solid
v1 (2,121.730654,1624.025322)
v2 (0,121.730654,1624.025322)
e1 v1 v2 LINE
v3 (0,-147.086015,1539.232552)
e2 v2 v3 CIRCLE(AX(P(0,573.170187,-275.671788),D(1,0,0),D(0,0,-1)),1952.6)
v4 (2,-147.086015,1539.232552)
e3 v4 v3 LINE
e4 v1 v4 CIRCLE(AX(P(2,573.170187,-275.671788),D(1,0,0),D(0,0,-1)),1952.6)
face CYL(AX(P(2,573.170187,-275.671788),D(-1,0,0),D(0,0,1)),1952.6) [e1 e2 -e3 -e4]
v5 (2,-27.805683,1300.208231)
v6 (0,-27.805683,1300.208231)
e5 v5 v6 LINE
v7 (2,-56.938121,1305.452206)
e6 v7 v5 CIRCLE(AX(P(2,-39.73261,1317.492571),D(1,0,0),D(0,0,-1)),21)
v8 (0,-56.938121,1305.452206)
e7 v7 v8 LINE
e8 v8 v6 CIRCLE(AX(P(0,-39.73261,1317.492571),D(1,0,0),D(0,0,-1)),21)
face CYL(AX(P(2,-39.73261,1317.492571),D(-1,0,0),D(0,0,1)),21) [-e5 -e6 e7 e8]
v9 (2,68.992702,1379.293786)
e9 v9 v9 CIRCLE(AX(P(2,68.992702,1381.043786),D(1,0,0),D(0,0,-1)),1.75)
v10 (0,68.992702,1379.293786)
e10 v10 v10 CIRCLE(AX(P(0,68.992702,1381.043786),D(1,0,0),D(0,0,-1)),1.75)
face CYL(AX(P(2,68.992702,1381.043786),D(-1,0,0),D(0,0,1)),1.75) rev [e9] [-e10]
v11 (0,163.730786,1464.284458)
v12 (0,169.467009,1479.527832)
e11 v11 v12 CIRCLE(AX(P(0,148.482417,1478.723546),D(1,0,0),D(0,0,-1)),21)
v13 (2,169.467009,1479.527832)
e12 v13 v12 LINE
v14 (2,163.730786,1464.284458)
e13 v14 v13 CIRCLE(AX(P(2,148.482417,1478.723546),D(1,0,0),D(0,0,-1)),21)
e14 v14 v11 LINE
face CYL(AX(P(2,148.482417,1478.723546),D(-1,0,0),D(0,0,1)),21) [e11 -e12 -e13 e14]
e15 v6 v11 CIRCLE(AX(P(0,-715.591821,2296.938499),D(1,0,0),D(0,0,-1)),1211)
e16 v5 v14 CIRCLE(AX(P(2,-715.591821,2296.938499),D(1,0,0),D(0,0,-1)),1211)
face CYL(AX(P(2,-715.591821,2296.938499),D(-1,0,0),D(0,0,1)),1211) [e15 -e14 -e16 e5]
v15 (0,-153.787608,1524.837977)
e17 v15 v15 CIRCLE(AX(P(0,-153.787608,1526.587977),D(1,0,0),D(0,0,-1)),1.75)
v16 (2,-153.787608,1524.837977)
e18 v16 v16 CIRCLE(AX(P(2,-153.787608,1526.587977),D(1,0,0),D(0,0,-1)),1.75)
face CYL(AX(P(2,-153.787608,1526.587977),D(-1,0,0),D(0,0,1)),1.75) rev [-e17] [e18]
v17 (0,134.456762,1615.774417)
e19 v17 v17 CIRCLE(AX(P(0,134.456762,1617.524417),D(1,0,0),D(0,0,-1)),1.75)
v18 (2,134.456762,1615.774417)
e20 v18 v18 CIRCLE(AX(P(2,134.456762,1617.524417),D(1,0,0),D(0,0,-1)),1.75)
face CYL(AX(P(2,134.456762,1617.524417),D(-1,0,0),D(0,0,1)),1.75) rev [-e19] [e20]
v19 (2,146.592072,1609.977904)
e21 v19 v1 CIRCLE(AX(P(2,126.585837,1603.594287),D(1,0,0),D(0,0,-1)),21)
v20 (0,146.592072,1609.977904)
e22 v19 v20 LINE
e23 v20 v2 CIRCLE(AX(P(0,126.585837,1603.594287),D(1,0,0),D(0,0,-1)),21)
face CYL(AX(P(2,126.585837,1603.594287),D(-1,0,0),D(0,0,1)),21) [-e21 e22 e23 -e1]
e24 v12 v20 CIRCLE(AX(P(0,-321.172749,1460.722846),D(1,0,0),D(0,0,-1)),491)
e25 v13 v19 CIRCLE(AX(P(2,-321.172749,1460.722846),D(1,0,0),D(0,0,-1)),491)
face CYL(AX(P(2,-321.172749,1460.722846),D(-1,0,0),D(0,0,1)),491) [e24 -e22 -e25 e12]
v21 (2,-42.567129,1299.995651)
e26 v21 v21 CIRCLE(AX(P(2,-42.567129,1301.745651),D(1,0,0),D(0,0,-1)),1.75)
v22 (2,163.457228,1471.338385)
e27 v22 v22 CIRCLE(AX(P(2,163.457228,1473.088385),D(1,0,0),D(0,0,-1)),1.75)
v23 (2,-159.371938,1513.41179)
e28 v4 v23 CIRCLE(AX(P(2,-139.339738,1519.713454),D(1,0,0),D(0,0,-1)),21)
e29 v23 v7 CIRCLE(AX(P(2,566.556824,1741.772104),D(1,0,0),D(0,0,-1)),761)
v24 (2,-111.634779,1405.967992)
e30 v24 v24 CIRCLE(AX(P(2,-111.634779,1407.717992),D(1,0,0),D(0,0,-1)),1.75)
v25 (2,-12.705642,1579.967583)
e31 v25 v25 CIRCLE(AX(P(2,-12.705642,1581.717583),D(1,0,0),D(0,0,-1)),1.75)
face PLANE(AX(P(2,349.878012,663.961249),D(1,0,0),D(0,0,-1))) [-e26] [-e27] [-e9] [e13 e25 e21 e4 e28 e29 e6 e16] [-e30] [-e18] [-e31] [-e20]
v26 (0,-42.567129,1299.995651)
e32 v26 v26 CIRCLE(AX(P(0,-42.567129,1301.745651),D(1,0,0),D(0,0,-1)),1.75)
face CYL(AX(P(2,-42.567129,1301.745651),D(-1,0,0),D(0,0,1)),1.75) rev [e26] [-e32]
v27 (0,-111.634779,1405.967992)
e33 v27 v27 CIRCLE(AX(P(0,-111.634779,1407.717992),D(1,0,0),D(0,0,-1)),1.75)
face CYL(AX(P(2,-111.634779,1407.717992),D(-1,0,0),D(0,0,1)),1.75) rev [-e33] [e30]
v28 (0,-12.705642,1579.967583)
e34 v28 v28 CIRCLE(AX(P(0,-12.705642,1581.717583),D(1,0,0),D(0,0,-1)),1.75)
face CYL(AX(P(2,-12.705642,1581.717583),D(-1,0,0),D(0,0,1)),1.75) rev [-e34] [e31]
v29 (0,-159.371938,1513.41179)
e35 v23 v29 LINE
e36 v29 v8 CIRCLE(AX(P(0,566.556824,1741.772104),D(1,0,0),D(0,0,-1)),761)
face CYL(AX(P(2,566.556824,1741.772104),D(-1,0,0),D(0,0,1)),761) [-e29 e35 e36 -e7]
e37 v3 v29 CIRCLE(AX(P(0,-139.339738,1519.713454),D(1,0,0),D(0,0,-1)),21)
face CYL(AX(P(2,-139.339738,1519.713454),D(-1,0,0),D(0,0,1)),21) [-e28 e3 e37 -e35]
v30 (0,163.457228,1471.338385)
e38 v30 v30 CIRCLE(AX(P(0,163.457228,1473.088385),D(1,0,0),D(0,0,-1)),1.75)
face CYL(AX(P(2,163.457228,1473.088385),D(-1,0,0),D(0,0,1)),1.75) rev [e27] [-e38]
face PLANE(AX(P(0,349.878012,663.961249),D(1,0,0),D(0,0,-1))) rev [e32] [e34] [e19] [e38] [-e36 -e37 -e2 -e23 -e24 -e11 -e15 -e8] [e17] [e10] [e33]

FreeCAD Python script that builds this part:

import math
import FreeCAD as App
import Part
import Sketcher

doc = App.newDocument("Part")
body = doc.addObject("PartDesign::Body", "Body")

# Sketch on YZ plane
sketch1 = doc.addObject("Sketcher::SketchObject", "Sketch")
body.addObject(sketch1)
sketch1.AttachmentSupport = (doc.YZ_Plane, [""])
sketch1.MapMode = "FlatFace"
sketch1.addGeometry([
    Part.ArcOfCircle(Part.Circle(App.Vector(573.2, -275.7, 0), App.Vector(0, 0, 1), 1952.6), math.radians(103.37), math.radians(111.65)),  # 0
    Part.ArcOfCircle(Part.Circle(App.Vector(-139.3, 1519.7, 0), App.Vector(0, 0, 1), 21), math.radians(112), math.radians(197)),  # 1
    Part.ArcOfCircle(Part.Circle(App.Vector(566.6, 1741.8, 0), App.Vector(0, 0, 1), 761), math.radians(-162.54), math.radians(-145.02)),  # 2
    Part.ArcOfCircle(Part.Circle(App.Vector(-39.7, 1317.5, 0), App.Vector(0, 0, 1), 21), math.radians(-145), math.radians(-55)),  # 3
    Part.ArcOfCircle(Part.Circle(App.Vector(-715.6, 2296.9, 0), App.Vector(0, 0, 1), 1211), math.radians(-55.39), math.radians(-43.44)),  # 4
    Part.ArcOfCircle(Part.Circle(App.Vector(148.5, 1478.7, 0), App.Vector(0, 0, 1), 21), math.radians(-43), math.radians(2)),  # 5
    Part.ArcOfCircle(Part.Circle(App.Vector(-321.2, 1460.7, 0), App.Vector(0, 0, 1), 491), math.radians(2.19), math.radians(17.7)),  # 6
    Part.ArcOfCircle(Part.Circle(App.Vector(126.6, 1603.6, 0), App.Vector(0, 0, 1), 21), math.radians(18), math.radians(103)),  # 7
    Part.Circle(App.Vector(-153.8, 1526.6, 0), App.Vector(0, 0, 1), 1.8),  # 8
    Part.Circle(App.Vector(-12.7, 1581.7, 0), App.Vector(0, 0, 1), 1.8),  # 9
    Part.Circle(App.Vector(-111.6, 1407.7, 0), App.Vector(0, 0, 1), 1.8),  # 10
    Part.Circle(App.Vector(-42.6, 1301.7, 0), App.Vector(0, 0, 1), 1.8),  # 11
    Part.Circle(App.Vector(134.5, 1617.5, 0), App.Vector(0, 0, 1), 1.8),  # 12
    Part.Circle(App.Vector(163.5, 1473.1, 0), App.Vector(0, 0, 1), 1.8),  # 13
    Part.Circle(App.Vector(69, 1381, 0), App.Vector(0, 0, 1), 1.8),  # 14
], False)
sketch1.addConstraint([
    Sketcher.Constraint("Tangent", 0, 2, 1, 1),
    Sketcher.Constraint("Tangent", 1, 2, 2, 1),
    Sketcher.Constraint("Tangent", 2, 2, 3, 1),
    Sketcher.Constraint("Tangent", 3, 2, 4, 1),
    Sketcher.Constraint("Tangent", 4, 2, 5, 1),
    Sketcher.Constraint("Tangent", 5, 2, 6, 1),
    Sketcher.Constraint("Tangent", 6, 2, 7, 1),
    Sketcher.Constraint("Tangent", 7, 2, 0, 1),
    Sketcher.Constraint("Equal", 1, 3),
    Sketcher.Constraint("Equal", 3, 5),
    Sketcher.Constraint("Equal", 5, 7),
    Sketcher.Constraint("Equal", 8, 9),
    Sketcher.Constraint("Equal", 9, 10),
    Sketcher.Constraint("Equal", 10, 11),
    Sketcher.Constraint("Equal", 11, 12),
    Sketcher.Constraint("Equal", 12, 13),
    Sketcher.Constraint("Equal", 13, 14),
    Sketcher.Constraint("Radius", 1, 21.0),
    Sketcher.Constraint("Radius", 2, 761.0),
    Sketcher.Constraint("Radius", 4, 1211.0),
    Sketcher.Constraint("Radius", 6, 491.0),
    Sketcher.Constraint("Diameter", 8, 3.5),
    Sketcher.Constraint("Radius", 0, 1952.6),
    Sketcher.Constraint("DistanceY", -1, 1, 4, 3, 2296.938499),
    Sketcher.Constraint("DistanceX", -1, 1, 14, 3, 68.992702),
    Sketcher.Constraint("DistanceY", 6, 3, 5, 3, 18.0007),
    Sketcher.Constraint("DistanceX", 1, 3, 12, 3, 273.7965),
    Sketcher.Constraint("DistanceY", 13, 3, 7, 3, 130.505902),
    Sketcher.Constraint("DistanceY", 14, 3, 13, 3, 92.044599),
    Sketcher.Constraint("DistanceY", 10, 3, 1, 2, 105.693798),
    Sketcher.Constraint("DistanceY", 0, 3, -1, 1, 275.671788),
    Sketcher.Constraint("DistanceX", 1, 3, -1, 1, 139.339738),
    Sketcher.Constraint("DistanceX", 3, 3, -1, 1, 39.73261),
    Sketcher.Constraint("DistanceY", -1, 1, 3, 3, 1317.492571),
    Sketcher.Constraint("DistanceX", 6, 3, -1, 1, 321.172749),
    Sketcher.Constraint("DistanceX", 9, 3, -1, 1, 12.705642),
    Sketcher.Constraint("DistanceX", 10, 3, -1, 1, 111.634779),
    Sketcher.Constraint("DistanceY", -1, 1, 10, 3, 1407.717992),
    Sketcher.Constraint("DistanceX", 11, 3, -1, 1, 42.567129),
    Sketcher.Constraint("DistanceY", -1, 1, 11, 3, 1301.745651),
    Sketcher.Constraint("DistanceX", 8, 3, 1, 3, 14.44787),
    Sketcher.Constraint("DistanceY", 6, 3, 8, 3, 65.865131),
    Sketcher.Constraint("DistanceY", 1, 3, 9, 3, 62.004128),
    Sketcher.Constraint("DistanceY", 7, 3, 12, 3, 13.93013),
    Sketcher.Constraint("DistanceX", 5, 3, 13, 3, 14.974811),
])
pad1 = doc.addObject("PartDesign::Pad", "Pad")
body.addObject(pad1)
pad1.Profile = sketch1
pad1.Length = 2

doc.recompute()
